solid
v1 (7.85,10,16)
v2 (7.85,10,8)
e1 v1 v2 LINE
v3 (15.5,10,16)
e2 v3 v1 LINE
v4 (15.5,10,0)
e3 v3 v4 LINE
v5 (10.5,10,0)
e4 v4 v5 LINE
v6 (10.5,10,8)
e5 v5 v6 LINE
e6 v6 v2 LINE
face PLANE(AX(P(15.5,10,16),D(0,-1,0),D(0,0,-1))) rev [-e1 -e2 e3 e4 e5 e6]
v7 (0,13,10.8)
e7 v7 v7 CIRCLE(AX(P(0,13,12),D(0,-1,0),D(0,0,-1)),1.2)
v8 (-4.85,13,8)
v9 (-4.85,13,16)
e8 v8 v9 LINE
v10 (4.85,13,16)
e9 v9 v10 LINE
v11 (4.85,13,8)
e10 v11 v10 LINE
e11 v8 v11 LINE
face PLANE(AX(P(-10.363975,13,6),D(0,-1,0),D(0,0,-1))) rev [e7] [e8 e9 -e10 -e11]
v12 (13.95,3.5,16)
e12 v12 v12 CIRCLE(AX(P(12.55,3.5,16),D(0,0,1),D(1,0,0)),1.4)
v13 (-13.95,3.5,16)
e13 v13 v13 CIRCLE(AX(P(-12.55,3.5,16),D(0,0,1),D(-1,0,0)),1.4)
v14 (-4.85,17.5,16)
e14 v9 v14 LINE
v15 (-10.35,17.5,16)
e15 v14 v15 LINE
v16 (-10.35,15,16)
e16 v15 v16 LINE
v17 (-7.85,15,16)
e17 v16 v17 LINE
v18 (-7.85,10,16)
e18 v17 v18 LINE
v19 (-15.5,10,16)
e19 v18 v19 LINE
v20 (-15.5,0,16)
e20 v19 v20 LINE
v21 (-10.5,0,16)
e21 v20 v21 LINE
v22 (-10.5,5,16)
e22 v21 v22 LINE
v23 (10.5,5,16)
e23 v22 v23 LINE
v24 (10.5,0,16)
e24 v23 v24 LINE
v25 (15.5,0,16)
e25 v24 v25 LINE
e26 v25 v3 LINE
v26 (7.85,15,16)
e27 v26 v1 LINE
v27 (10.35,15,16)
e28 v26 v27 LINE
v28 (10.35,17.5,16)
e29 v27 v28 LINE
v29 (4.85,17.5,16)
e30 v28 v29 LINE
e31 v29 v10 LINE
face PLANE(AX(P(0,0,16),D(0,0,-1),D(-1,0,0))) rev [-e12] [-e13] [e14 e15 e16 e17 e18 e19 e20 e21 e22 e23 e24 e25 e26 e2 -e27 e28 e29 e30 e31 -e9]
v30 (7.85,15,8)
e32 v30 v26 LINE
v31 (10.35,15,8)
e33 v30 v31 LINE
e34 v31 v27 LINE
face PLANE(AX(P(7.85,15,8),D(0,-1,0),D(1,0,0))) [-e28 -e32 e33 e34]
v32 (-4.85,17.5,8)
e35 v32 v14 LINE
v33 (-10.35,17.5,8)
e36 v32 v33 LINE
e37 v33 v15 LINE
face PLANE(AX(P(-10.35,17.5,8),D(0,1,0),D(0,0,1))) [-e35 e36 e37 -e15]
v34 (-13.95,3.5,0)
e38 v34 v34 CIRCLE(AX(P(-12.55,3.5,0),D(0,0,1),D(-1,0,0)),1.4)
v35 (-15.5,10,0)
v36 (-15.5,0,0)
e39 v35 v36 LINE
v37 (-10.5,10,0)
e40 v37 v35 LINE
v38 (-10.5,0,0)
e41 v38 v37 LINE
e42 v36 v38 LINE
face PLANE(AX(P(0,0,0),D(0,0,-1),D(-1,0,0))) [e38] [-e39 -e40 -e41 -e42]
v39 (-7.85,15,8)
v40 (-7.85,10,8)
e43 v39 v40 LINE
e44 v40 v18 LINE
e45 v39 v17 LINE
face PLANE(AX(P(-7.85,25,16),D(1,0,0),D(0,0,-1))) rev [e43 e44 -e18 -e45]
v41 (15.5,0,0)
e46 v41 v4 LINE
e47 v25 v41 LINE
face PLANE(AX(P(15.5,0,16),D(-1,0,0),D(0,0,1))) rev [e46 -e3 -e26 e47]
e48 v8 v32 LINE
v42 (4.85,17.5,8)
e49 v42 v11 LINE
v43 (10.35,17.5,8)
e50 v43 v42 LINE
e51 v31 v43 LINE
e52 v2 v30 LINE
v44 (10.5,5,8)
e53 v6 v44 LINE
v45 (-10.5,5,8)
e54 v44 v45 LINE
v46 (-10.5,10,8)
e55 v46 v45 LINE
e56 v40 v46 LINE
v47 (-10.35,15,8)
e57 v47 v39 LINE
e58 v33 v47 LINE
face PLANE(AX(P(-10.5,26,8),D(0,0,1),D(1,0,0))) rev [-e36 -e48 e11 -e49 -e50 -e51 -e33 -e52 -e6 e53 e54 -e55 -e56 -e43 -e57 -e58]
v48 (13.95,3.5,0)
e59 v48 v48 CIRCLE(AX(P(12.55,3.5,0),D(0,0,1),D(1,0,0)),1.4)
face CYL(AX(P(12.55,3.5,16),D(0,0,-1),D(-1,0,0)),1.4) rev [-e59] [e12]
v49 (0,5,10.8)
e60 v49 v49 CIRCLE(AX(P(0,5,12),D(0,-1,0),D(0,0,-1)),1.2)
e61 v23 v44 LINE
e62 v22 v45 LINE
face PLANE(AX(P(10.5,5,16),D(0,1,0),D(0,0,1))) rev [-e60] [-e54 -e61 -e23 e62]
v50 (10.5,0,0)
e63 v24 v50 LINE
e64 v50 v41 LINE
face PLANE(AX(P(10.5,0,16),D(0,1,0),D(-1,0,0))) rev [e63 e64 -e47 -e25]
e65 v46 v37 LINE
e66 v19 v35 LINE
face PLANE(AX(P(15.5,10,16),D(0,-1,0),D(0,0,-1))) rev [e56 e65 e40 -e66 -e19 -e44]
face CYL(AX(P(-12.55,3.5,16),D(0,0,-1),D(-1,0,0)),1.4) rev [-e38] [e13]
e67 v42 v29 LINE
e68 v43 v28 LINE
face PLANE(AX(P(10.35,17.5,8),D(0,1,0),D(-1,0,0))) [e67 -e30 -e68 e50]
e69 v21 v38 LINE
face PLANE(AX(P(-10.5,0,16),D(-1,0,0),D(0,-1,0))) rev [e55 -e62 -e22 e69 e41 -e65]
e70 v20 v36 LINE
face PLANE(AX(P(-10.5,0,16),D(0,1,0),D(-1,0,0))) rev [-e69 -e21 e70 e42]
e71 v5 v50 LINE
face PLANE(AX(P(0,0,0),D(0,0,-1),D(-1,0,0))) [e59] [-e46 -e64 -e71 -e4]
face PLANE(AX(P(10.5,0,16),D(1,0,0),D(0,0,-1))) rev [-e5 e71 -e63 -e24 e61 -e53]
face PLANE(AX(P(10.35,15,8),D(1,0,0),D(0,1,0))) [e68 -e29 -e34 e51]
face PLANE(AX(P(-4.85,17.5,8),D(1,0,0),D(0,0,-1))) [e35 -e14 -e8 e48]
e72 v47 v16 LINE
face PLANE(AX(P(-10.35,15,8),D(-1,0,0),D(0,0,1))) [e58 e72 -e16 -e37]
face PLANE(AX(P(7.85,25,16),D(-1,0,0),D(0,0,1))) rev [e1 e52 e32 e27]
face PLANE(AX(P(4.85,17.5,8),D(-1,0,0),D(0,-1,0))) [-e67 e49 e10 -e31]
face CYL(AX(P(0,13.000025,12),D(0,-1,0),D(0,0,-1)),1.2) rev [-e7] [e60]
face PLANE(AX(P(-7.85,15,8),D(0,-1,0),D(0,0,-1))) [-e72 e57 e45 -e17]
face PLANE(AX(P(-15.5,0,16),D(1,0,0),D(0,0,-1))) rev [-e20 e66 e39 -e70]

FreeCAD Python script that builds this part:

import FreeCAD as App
import Part
import Sketcher
from FreeCAD import Vector
Q = App.Units.Quantity


def add_polygon(sketch, points):
    """Adds a closed chain of lines whose ends are joined by coincident constraints."""
    first, n = sketch.GeometryCount, len(points)
    for a, b in zip(points, points[1:] + points[:1]):
        sketch.addGeometry(Part.LineSegment(App.Vector(*a, 0), App.Vector(*b, 0)), False)
    for i in range(n):
        sketch.addConstraint(Sketcher.Constraint("Coincident", first + i, 2, first + (i + 1) % n, 1))

doc = App.newDocument("Part")
body = doc.addObject("PartDesign::Body", "Body")

# Sketch on XY plane
sketch1 = body.newObject("Sketcher::SketchObject", "Sketch")
sketch1.AttachmentSupport = (doc.getObject("XY_Plane"), [""])
sketch1.MapMode = "FlatFace"
add_polygon(sketch1, [(15.5, 10), (-15.5, 10), (-15.5, 0), (-10.5, 0), (-10.5, 5), (10.5, 5), (10.5, 0), (15.5, 0)])  # lines 0-7
sketch1.addGeometry(Part.Circle(Vector(-12.6, 3.5, 0), Vector(0, 0, 1), 1.4), False)  # 8
sketch1.addGeometry(Part.Circle(Vector(12.6, 3.5, 0), Vector(0, 0, 1), 1.4), False)  # 9
sketch1.addConstraint([
    Sketcher.Constraint("Horizontal", 0),
    Sketcher.Constraint("Vertical", 1),
    Sketcher.Constraint("Horizontal", 2),
    Sketcher.Constraint("Vertical", 3),
    Sketcher.Constraint("Horizontal", 4),
    Sketcher.Constraint("Vertical", 5),
    Sketcher.Constraint("Horizontal", 6),
    Sketcher.Constraint("Vertical", 7),
    Sketcher.Constraint("Equal", 8, 9),
    Sketcher.Constraint("Symmetric", 2, 2, 5, 2, -1, 1),
    Sketcher.Constraint("Symmetric", 8, 3, 9, 3, -2),
    Sketcher.Constraint("Symmetric", 1, 2, 6, 2, -2),
    Sketcher.Constraint("Equal", 6, 3),
    Sketcher.Constraint("Diameter", 8, Q("2.8 mm")),
    Sketcher.Constraint("DistanceX", 0, 2, 0, 1, Q("31 mm")),
    Sketcher.Constraint("DistanceX", 2, 1, 2, 2, Q("5 mm")),
    Sketcher.Constraint("DistanceY", 1, 2, 1, 1, Q("10 mm")),
    Sketcher.Constraint("DistanceY", -1, 1, 8, 3, Q("3.5 mm")),
    Sketcher.Constraint("DistanceX", 8, 3, 9, 3, Q("25.1 mm")),
])
pad1 = body.newObject("PartDesign::Pad", "Pad")
pad1.Profile = sketch1
pad1.Length = 16

# Sketch on XZ plane
sketch2 = body.newObject("Sketcher::SketchObject", "Sketch001")
sketch2.AttachmentSupport = (doc.getObject("XZ_Plane"), [""])
sketch2.MapMode = "FlatFace"
sketch2.AttachmentOffset = App.Placement(Vector(0, 0, -10), App.Rotation())
add_polygon(sketch2, [(-8, 0), (-8, 16), (8, 16), (8, 0)])  # lines 0-3
sketch2.addConstraint([
    Sketcher.Constraint("Vertical", 0),
    Sketcher.Constraint("Horizontal", 1),
    Sketcher.Constraint("Vertical", 2),
    Sketcher.Constraint("Horizontal", 3),
    Sketcher.Constraint("Symmetric", 2, 2, 3, 2, -1, 1),
    Sketcher.Constraint("DistanceY", 0, 1, 0, 2, Q("16 mm")),
    Sketcher.Constraint("DistanceX", 1, 1, 1, 2, Q("15.7 mm")),
])
pad2 = body.newObject("PartDesign::Pad", "Pad001")
pad2.Profile = sketch2
pad2.Length = 15
pad2.Reversed = True

# Sketch on XY plane
sketch3 = body.newObject("Sketcher::SketchObject", "Sketch002")
sketch3.AttachmentSupport = (doc.getObject("XY_Plane"), [""])
sketch3.MapMode = "FlatFace"
sketch3.AttachmentOffset = App.Placement(Vector(0, 0, 16), App.Rotation())
sketch3.addGeometry(Part.Circle(Vector(0, 17.5, 0), Vector(0, 0, 1), 4), False)
sketch3.addConstraint([
    Sketcher.Constraint("PointOnObject", 0, 3, -2),
    Sketcher.Constraint("Diameter", 0, Q("8 mm")),
    Sketcher.Constraint("DistanceY", -1, 1, 0, 3, Q("17.5 mm")),
])
pocket1 = body.newObject("PartDesign::Pocket", "Pocket")
pocket1.Profile = sketch3
pocket1.Length = 15

# Sketch on XZ plane
sketch4 = body.newObject("Sketcher::SketchObject", "Sketch003")
sketch4.AttachmentSupport = (doc.getObject("XZ_Plane"), [""])
sketch4.MapMode = "FlatFace"
sketch4.AttachmentOffset = App.Placement(Vector(0, 0, -5), App.Rotation())
add_polygon(sketch4, [(-10, 8), (-10, 0), (10, 0), (10, 8)])  # lines 0-3
sketch4.addConstraint([
    Sketcher.Constraint("Vertical", 0),
    Sketcher.Constraint("Horizontal", 1),
    Sketcher.Constraint("Vertical", 2),
    Sketcher.Constraint("Horizontal", 3),
    Sketcher.Constraint("Symmetric", 0, 2, 1, 2, -1, 1),
    Sketcher.Constraint("DistanceX", 1, 1, 1, 2, Q("21 mm")),
    Sketcher.Constraint("DistanceY", 0, 2, 0, 1, Q("8 mm")),
])
pocket2 = body.newObject("PartDesign::Pocket", "Pocket001")
pocket2.Profile = sketch4
pocket2.Length = 21

# Sketch on YZ plane
sketch5 = body.newObject("Sketcher::SketchObject", "Sketch004")
sketch5.AttachmentSupport = (doc.getObject("YZ_Plane"), [""])
sketch5.MapMode = "FlatFace"
sketch5.AttachmentOffset = App.Placement(Vector(0, 0, -7.85), App.Rotation())
sketch5.addGeometry(Part.Circle(Vector(17.5, 12, 0), Vector(0, 0, 1), 1.4), False)
sketch5.addConstraint([
    Sketcher.Constraint("Diameter", 0, Q("2.8 mm")),
    Sketcher.Constraint("DistanceY", -1, 1, 0, 3, Q("12 mm")),
    Sketcher.Constraint("DistanceX", -1, 1, 0, 3, Q("17.5 mm")),
])
pocket3 = body.newObject("PartDesign::Pocket", "Pocket002")
pocket3.Profile = sketch5
pocket3.Length = 21
pocket3.Reversed = True

# Sketch on XY plane
sketch6 = body.newObject("Sketcher::SketchObject", "Sketch005")
sketch6.AttachmentSupport = (doc.getObject("XY_Plane"), [""])
sketch6.MapMode = "FlatFace"
sketch6.AttachmentOffset = App.Placement(Vector(0, 0, 16), App.Rotation())
add_polygon(sketch6, [(-10, 25), (-10, 13), (8, 13), (8, 25)])  # lines 0-3
sketch6.addConstraint([
    Sketcher.Constraint("Vertical", 0),
    Sketcher.Constraint("Horizontal", 1),
    Sketcher.Constraint("Vertical", 2),
    Sketcher.Constraint("Horizontal", 3),
    Sketcher.Constraint("DistanceY", 0, 2, 0, 1, Q("12 mm")),
    Sketcher.Constraint("DistanceY", -1, 1, 0, 2, Q("13 mm")),
    Sketcher.Constraint("DistanceX", -1, 1, 1, 2, Q("7.85 mm")),
    Sketcher.Constraint("DistanceX", 1, 1, 1, 2, Q("18.213975 mm")),
])
pocket4 = body.newObject("PartDesign::Pocket", "Pocket003")
pocket4.Profile = sketch6
pocket4.Length = 10

# Sketch on XZ plane
sketch7 = body.newObject("Sketcher::SketchObject", "Sketch006")
sketch7.AttachmentSupport = (doc.getObject("XZ_Plane"), [""])
sketch7.MapMode = "FlatFace"
sketch7.AttachmentOffset = App.Placement(Vector(0, 0, -5), App.Rotation())
sketch7.addGeometry(Part.Circle(Vector(0, 12, 0), Vector(0, 0, 1), 1.2), False)
sketch7.addConstraint([
    Sketcher.Constraint("PointOnObject", 0, 3, -2),
    Sketcher.Constraint("Diameter", 0, Q("2.4 mm")),
    Sketcher.Constraint("DistanceY", -1, 1, 0, 3, Q("12 mm")),
])
pocket5 = body.newObject("PartDesign::Pocket", "Pocket004")
pocket5.Profile = sketch7
pocket5.Type = "ThroughAll"

# Sketch on XY plane
sketch8 = body.newObject("Sketcher::SketchObject", "Sketch007")
sketch8.AttachmentSupport = (doc.getObject("XY_Plane"), [""])
sketch8.MapMode = "FlatFace"
sketch8.AttachmentOffset = App.Placement(Vector(0, 0, 16), App.Rotation())
add_polygon(sketch8, [(-7.8, 15), (-7.8, 13), (-4.8, 13), (-4.8, 17.5), (-10.3, 17.5), (-10.3, 15)])  # lines 0-5
add_polygon(sketch8, [(4.8, 13), (7.8, 13), (7.8, 15), (10.3, 15), (10.3, 17.5), (4.8, 17.5)])  # lines 6-11
sketch8.addConstraint([
    Sketcher.Constraint("Vertical", 0),
    Sketcher.Constraint("Horizontal", 1),
    Sketcher.Constraint("Vertical", 2),
    Sketcher.Constraint("Horizontal", 3),
    Sketcher.Constraint("Vertical", 4),
    Sketcher.Constraint("Horizontal", 5),
    Sketcher.Constraint("Horizontal", 6),
    Sketcher.Constraint("Vertical", 7),
    Sketcher.Constraint("Horizontal", 8),
    Sketcher.Constraint("Vertical", 9),
    Sketcher.Constraint("Horizontal", 10),
    Sketcher.Constraint("Vertical", 11),
    Sketcher.Constraint("Symmetric", 0, 2, 6, 2, -2),
    Sketcher.Constraint("Symmetric", 4, 2, 8, 2, -2),
    Sketcher.Constraint("Symmetric", 2, 2, 10, 2, -2),
    Sketcher.Constraint("Equal", 8, 4),
    Sketcher.Constraint("DistanceX", 1, 1, 1, 2, Q("3 mm")),
    Sketcher.Constraint("DistanceY", 0, 2, 0, 1, Q("2 mm")),
    Sketcher.Constraint("DistanceX", 3, 2, 3, 1, Q("5.5 mm")),
    Sketcher.Constraint("DistanceY", -1, 1, 0, 2, Q("13 mm")),
    Sketcher.Constraint("DistanceX", 1, 2, 6, 2, Q("12.7 mm")),
])
pad3 = body.newObject("PartDesign::Pad", "Pad002")
pad3.Profile = sketch8
pad3.Length = 8
pad3.Reversed = True

doc.recompute()
